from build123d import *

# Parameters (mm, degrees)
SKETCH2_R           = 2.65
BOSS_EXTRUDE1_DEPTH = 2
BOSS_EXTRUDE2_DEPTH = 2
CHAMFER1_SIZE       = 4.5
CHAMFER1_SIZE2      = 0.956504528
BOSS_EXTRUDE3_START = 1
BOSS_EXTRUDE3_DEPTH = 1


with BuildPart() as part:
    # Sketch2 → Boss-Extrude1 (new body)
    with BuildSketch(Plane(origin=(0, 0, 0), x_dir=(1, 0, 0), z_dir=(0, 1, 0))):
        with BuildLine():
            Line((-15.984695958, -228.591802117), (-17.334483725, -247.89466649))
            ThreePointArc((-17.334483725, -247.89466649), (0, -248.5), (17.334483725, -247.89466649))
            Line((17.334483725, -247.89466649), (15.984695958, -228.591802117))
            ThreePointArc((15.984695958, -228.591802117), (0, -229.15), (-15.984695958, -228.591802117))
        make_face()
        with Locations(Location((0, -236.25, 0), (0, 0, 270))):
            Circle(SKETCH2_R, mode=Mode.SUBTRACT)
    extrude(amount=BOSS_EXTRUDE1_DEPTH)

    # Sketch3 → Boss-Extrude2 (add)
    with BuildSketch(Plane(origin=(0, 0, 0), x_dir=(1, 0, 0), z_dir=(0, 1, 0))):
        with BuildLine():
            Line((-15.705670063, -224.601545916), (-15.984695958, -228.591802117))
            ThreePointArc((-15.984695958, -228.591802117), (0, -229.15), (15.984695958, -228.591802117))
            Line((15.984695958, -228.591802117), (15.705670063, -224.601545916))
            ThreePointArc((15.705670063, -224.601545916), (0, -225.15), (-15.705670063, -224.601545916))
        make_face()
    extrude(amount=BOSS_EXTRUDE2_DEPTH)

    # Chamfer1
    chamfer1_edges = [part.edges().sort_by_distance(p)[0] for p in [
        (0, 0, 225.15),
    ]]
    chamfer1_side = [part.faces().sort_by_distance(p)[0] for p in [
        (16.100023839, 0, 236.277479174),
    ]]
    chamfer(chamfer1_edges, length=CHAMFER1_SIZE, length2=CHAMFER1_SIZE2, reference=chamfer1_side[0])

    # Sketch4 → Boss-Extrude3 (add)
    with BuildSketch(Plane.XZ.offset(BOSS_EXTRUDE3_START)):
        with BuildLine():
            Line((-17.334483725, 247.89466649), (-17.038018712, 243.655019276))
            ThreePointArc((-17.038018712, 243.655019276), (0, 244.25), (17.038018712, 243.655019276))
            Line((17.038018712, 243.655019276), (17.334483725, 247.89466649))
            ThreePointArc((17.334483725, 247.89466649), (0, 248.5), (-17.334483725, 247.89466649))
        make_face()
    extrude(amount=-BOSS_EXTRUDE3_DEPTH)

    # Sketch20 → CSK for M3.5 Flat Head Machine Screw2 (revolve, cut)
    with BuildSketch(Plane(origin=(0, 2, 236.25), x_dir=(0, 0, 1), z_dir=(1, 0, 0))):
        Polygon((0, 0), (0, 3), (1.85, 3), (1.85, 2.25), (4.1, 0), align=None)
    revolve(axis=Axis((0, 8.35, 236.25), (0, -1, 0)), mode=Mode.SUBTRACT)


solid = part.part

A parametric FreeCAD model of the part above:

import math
import FreeCAD as App
import Part
import Sketcher

V = App.Vector
Q = App.Units.Quantity


def edges_at(feature, points):
    """Names of the edges that pass closest to the given points."""
    edges = feature.Shape.Edges
    near = lambda p: min(range(len(edges)), key=lambda i: edges[i].distToShape(Part.Vertex(*p))[0])
    return sorted({f"Edge{near(p) + 1}" for p in points})


def add_polygon(sketch, points):
    """Adds a closed chain of lines whose ends are joined by coincident constraints."""
    first, n = sketch.GeometryCount, len(points)
    for a, b in zip(points, points[1:] + points[:1]):
        sketch.addGeometry(Part.LineSegment(App.Vector(*a, 0), App.Vector(*b, 0)), False)
    for i in range(n):
        sketch.addConstraint(Sketcher.Constraint("Coincident", first + i, 2, first + (i + 1) % n, 1))

doc = App.newDocument("Part")
params = doc.addObject("Spreadsheet::Sheet", "Params")
for row, (alias, value) in enumerate([
    ("sketch1_diameter", "5.3 mm"),
    ("sketch1_radius", "248.5 mm"),
    ("sketch1_radius2", "229.15 mm"),
    ("pad1_length", "2 mm"),
    ("sketch2_radius", "229.15 mm"),
    ("sketch2_radius2", "225.15 mm"),
    ("pad2_length", "2 mm"),
    ("chamfer_size", "4.5 mm"),
    ("chamfer_size2", "0.956505 mm"),
    ("sketch3_radius", "248.5 mm"),
    ("sketch3_radius2", "244.25 mm"),
    ("pad3_length", "1 mm"),
    ("sketch4_width", "3 mm"),
    ("sketch4_height", "4.1 mm"),
    ("sketch4_width2", "0.75 mm"),
    ("groove_angle", "360 deg"),
], start=1):
    params.set(f"A{row}", alias)
    params.set(f"B{row}", "=" + value)
    params.setAlias(f"B{row}", alias)

body = doc.addObject("PartDesign::Body", "Body")

sketch1 = doc.addObject("Sketcher::SketchObject", "Sketch")
body.addObject(sketch1)
sketch1.AttachmentSupport = (doc.XZ_Plane, [""])
sketch1.MapMode = "FlatFace"
sketch1.addGeometry([
    Part.LineSegment(V(-16, 228.6, 0), V(-17.3, 247.9, 0)),
    Part.ArcOfCircle(Part.Circle(V(0, 0, 0), V(0, 0, 1), 248.5), math.radians(86), math.radians(94)),
    Part.LineSegment(V(17.3, 247.9, 0), V(16, 228.6, 0)),
    Part.ArcOfCircle(Part.Circle(V(0, 0, 0), V(0, 0, 1), 229.1), math.radians(86), math.radians(94)),
    Part.Circle(V(0, 236.2, 0), V(0, 0, 1), 2.6),
], False)
sketch1.addConstraint([
    Sketcher.Constraint("Coincident", 0, 2, 1, 2),
    Sketcher.Constraint("Coincident", 1, 1, 2, 1),
    Sketcher.Constraint("Coincident", 2, 2, 3, 1),
    Sketcher.Constraint("Coincident", 3, 2, 0, 1),
    Sketcher.Constraint("Coincident", 1, 3, -1, 1),
    Sketcher.Constraint("Coincident", 3, 3, -1, 1),
    Sketcher.Constraint("PointOnObject", 4, 3, -2),
    Sketcher.Constraint("Horizontal", 0, 2, 1, 1),
    Sketcher.Constraint("Horizontal", 2, 2, 3, 2),
    Sketcher.Constraint("Diameter", 4, Q("5.3 mm")),
    Sketcher.Constraint("Radius", 1, Q("248.5 mm")),
    Sketcher.Constraint("Angle", 0, Q("94 deg")),
    Sketcher.Constraint("Radius", 3, Q("229.15 mm")),
    Sketcher.Constraint("DistanceY", -1, 1, 4, 3, Q("236.25 mm")),
    Sketcher.Constraint("DistanceX", 0, 2, 2, 2, Q("33.31918 mm")),
])
sketch1.setExpression("Constraints[9]", "Params.sketch1_diameter")
sketch1.setExpression("Constraints[10]", "Params.sketch1_radius")
sketch1.setExpression("Constraints[12]", "Params.sketch1_radius2")
pad1 = doc.addObject("PartDesign::Pad", "Pad")
body.addObject(pad1)
pad1.Profile = sketch1
pad1.setExpression("Length", "Params.pad1_length")
pad1.Reversed = True

sketch2 = doc.addObject("Sketcher::SketchObject", "Sketch001")
body.addObject(sketch2)
sketch2.AttachmentSupport = (doc.XZ_Plane, [""])
sketch2.MapMode = "FlatFace"
sketch2.addGeometry([
    Part.LineSegment(V(-15.7, 224.6, 0), V(-16, 228.6, 0)),
    Part.ArcOfCircle(Part.Circle(V(0, 0, 0), V(0, 0, 1), 229.1), math.radians(86), math.radians(94)),
    Part.LineSegment(V(16, 228.6, 0), V(15.7, 224.6, 0)),
    Part.ArcOfCircle(Part.Circle(V(0, 0, 0), V(0, 0, 1), 225.1), math.radians(86), math.radians(94)),
], False)
sketch2.addConstraint([
    Sketcher.Constraint("Coincident", 0, 2, 1, 2),
    Sketcher.Constraint("Coincident", 1, 1, 2, 1),
    Sketcher.Constraint("Coincident", 2, 2, 3, 1),
    Sketcher.Constraint("Coincident", 3, 2, 0, 1),
    Sketcher.Constraint("Coincident", 1, 3, -1, 1),
    Sketcher.Constraint("Coincident", 3, 3, -1, 1),
    Sketcher.Constraint("Horizontal", 0, 2, 1, 1),
    Sketcher.Constraint("Horizontal", 2, 2, 3, 2),
    Sketcher.Constraint("Angle", 0, Q("94 deg")),
    Sketcher.Constraint("Radius", 1, Q("229.15 mm")),
    Sketcher.Constraint("Radius", 3, Q("225.15 mm")),
    Sketcher.Constraint("DistanceX", -1, 1, 2, 2, Q("15.70567 mm")),
])
sketch2.setExpression("Constraints[9]", "Params.sketch2_radius")
sketch2.setExpression("Constraints[10]", "Params.sketch2_radius2")
pad2 = doc.addObject("PartDesign::Pad", "Pad001")
body.addObject(pad2)
pad2.Profile = sketch2
pad2.setExpression("Length", "Params.pad2_length")
pad2.Reversed = True
doc.recompute()

chamfer = doc.addObject("PartDesign::Chamfer", "Chamfer")
body.addObject(chamfer)
chamfer.Base = (pad2, edges_at(pad2, [(0, 0, 225.15)]))
chamfer.ChamferType = "Two distances"
chamfer.setExpression("Size", "Params.chamfer_size")
chamfer.setExpression("Size2", "Params.chamfer_size2")
chamfer.FlipDirection = True

sketch3 = doc.addObject("Sketcher::SketchObject", "Sketch002")
body.addObject(sketch3)
sketch3.AttachmentSupport = (doc.XZ_Plane, [""])
sketch3.MapMode = "FlatFace"
sketch3.AttachmentOffset = App.Placement(V(0, 0, 1), App.Rotation())
sketch3.addGeometry([
    Part.LineSegment(V(-17.3, 247.9, 0), V(-17, 243.7, 0)),
    Part.ArcOfCircle(Part.Circle(V(0, 0, 0), V(0, 0, 1), 244.3), math.radians(86), math.radians(94)),
    Part.LineSegment(V(17, 243.7, 0), V(17.3, 247.9, 0)),
    Part.ArcOfCircle(Part.Circle(V(0, 0, 0), V(0, 0, 1), 248.5), math.radians(86), math.radians(94)),
], False)
sketch3.addConstraint([
    Sketcher.Constraint("Coincident", 0, 2, 1, 2),
    Sketcher.Constraint("Coincident", 1, 1, 2, 1),
    Sketcher.Constraint("Coincident", 2, 2, 3, 1),
    Sketcher.Constraint("Coincident", 3, 2, 0, 1),
    Sketcher.Constraint("Coincident", 1, 3, -1, 1),
    Sketcher.Constraint("Coincident", 3, 3, -1, 1),
    Sketcher.Constraint("Horizontal", 0, 2, 1, 1),
    Sketcher.Constraint("Horizontal", 2, 2, 3, 2),
    Sketcher.Constraint("Radius", 3, Q("248.5 mm")),
    Sketcher.Constraint("Angle", 0, Q("-86 deg")),
    Sketcher.Constraint("Radius", 1, Q("244.25 mm")),
    Sketcher.Constraint("DistanceX", 0, 2, -1, 1, Q("17.038019 mm")),
])
sketch3.setExpression("Constraints[8]", "Params.sketch3_radius")
sketch3.setExpression("Constraints[10]", "Params.sketch3_radius2")
pad3 = doc.addObject("PartDesign::Pad", "Pad002")
body.addObject(pad3)
pad3.Profile = sketch3
pad3.setExpression("Length", "Params.pad3_length")
pad3.Reversed = True

sketch4 = doc.addObject("Sketcher::SketchObject", "Sketch003")
body.addObject(sketch4)
sketch4.AttachmentSupport = (doc.YZ_Plane, [""])
sketch4.MapMode = "FlatFace"
add_polygon(sketch4, [(-1, 236.2), (2, 236.2), (2, 240.3), (-0.2, 238.1), (-1, 238.1)])
sketch4.addGeometry(Part.LineSegment(V(2, 236.2, 0), V(-1, 236.2, 0)), True)
sketch4.addConstraint([
    Sketcher.Constraint("Horizontal", 0),
    Sketcher.Constraint("Vertical", 1),
    Sketcher.Constraint("Horizontal", 3),
    Sketcher.Constraint("Vertical", 4),
    Sketcher.Constraint("Horizontal", 5),
    Sketcher.Constraint("Coincident", 5, 1, 0, 2),
    Sketcher.Constraint("Vertical", 3, 2, 5, 2),
    Sketcher.Constraint("DistanceX", 0, 1, 0, 2, Q("3 mm")),
    Sketcher.Constraint("Angle", 2, Q("-135 deg")),
    Sketcher.Constraint("DistanceY", 1, 1, 1, 2, Q("4.1 mm")),
    Sketcher.Constraint("DistanceX", -1, 1, 0, 2, Q("2 mm")),
    Sketcher.Constraint("DistanceX", 3, 2, 3, 1, Q("0.75 mm")),
    Sketcher.Constraint("DistanceY", -1, 1, 2, 2, Q("238.1 mm")),
])
sketch4.setExpression("Constraints[12]", "Params.sketch4_width")
sketch4.setExpression("Constraints[14]", "Params.sketch4_height")
sketch4.setExpression("Constraints[16]", "Params.sketch4_width2")
groove = doc.addObject("PartDesign::Groove", "Groove")
body.addObject(groove)
groove.Profile = sketch4
groove.ReferenceAxis = (sketch4, ["Axis0"])
groove.setExpression("Angle", "Params.groove_angle")

doc.recompute()
